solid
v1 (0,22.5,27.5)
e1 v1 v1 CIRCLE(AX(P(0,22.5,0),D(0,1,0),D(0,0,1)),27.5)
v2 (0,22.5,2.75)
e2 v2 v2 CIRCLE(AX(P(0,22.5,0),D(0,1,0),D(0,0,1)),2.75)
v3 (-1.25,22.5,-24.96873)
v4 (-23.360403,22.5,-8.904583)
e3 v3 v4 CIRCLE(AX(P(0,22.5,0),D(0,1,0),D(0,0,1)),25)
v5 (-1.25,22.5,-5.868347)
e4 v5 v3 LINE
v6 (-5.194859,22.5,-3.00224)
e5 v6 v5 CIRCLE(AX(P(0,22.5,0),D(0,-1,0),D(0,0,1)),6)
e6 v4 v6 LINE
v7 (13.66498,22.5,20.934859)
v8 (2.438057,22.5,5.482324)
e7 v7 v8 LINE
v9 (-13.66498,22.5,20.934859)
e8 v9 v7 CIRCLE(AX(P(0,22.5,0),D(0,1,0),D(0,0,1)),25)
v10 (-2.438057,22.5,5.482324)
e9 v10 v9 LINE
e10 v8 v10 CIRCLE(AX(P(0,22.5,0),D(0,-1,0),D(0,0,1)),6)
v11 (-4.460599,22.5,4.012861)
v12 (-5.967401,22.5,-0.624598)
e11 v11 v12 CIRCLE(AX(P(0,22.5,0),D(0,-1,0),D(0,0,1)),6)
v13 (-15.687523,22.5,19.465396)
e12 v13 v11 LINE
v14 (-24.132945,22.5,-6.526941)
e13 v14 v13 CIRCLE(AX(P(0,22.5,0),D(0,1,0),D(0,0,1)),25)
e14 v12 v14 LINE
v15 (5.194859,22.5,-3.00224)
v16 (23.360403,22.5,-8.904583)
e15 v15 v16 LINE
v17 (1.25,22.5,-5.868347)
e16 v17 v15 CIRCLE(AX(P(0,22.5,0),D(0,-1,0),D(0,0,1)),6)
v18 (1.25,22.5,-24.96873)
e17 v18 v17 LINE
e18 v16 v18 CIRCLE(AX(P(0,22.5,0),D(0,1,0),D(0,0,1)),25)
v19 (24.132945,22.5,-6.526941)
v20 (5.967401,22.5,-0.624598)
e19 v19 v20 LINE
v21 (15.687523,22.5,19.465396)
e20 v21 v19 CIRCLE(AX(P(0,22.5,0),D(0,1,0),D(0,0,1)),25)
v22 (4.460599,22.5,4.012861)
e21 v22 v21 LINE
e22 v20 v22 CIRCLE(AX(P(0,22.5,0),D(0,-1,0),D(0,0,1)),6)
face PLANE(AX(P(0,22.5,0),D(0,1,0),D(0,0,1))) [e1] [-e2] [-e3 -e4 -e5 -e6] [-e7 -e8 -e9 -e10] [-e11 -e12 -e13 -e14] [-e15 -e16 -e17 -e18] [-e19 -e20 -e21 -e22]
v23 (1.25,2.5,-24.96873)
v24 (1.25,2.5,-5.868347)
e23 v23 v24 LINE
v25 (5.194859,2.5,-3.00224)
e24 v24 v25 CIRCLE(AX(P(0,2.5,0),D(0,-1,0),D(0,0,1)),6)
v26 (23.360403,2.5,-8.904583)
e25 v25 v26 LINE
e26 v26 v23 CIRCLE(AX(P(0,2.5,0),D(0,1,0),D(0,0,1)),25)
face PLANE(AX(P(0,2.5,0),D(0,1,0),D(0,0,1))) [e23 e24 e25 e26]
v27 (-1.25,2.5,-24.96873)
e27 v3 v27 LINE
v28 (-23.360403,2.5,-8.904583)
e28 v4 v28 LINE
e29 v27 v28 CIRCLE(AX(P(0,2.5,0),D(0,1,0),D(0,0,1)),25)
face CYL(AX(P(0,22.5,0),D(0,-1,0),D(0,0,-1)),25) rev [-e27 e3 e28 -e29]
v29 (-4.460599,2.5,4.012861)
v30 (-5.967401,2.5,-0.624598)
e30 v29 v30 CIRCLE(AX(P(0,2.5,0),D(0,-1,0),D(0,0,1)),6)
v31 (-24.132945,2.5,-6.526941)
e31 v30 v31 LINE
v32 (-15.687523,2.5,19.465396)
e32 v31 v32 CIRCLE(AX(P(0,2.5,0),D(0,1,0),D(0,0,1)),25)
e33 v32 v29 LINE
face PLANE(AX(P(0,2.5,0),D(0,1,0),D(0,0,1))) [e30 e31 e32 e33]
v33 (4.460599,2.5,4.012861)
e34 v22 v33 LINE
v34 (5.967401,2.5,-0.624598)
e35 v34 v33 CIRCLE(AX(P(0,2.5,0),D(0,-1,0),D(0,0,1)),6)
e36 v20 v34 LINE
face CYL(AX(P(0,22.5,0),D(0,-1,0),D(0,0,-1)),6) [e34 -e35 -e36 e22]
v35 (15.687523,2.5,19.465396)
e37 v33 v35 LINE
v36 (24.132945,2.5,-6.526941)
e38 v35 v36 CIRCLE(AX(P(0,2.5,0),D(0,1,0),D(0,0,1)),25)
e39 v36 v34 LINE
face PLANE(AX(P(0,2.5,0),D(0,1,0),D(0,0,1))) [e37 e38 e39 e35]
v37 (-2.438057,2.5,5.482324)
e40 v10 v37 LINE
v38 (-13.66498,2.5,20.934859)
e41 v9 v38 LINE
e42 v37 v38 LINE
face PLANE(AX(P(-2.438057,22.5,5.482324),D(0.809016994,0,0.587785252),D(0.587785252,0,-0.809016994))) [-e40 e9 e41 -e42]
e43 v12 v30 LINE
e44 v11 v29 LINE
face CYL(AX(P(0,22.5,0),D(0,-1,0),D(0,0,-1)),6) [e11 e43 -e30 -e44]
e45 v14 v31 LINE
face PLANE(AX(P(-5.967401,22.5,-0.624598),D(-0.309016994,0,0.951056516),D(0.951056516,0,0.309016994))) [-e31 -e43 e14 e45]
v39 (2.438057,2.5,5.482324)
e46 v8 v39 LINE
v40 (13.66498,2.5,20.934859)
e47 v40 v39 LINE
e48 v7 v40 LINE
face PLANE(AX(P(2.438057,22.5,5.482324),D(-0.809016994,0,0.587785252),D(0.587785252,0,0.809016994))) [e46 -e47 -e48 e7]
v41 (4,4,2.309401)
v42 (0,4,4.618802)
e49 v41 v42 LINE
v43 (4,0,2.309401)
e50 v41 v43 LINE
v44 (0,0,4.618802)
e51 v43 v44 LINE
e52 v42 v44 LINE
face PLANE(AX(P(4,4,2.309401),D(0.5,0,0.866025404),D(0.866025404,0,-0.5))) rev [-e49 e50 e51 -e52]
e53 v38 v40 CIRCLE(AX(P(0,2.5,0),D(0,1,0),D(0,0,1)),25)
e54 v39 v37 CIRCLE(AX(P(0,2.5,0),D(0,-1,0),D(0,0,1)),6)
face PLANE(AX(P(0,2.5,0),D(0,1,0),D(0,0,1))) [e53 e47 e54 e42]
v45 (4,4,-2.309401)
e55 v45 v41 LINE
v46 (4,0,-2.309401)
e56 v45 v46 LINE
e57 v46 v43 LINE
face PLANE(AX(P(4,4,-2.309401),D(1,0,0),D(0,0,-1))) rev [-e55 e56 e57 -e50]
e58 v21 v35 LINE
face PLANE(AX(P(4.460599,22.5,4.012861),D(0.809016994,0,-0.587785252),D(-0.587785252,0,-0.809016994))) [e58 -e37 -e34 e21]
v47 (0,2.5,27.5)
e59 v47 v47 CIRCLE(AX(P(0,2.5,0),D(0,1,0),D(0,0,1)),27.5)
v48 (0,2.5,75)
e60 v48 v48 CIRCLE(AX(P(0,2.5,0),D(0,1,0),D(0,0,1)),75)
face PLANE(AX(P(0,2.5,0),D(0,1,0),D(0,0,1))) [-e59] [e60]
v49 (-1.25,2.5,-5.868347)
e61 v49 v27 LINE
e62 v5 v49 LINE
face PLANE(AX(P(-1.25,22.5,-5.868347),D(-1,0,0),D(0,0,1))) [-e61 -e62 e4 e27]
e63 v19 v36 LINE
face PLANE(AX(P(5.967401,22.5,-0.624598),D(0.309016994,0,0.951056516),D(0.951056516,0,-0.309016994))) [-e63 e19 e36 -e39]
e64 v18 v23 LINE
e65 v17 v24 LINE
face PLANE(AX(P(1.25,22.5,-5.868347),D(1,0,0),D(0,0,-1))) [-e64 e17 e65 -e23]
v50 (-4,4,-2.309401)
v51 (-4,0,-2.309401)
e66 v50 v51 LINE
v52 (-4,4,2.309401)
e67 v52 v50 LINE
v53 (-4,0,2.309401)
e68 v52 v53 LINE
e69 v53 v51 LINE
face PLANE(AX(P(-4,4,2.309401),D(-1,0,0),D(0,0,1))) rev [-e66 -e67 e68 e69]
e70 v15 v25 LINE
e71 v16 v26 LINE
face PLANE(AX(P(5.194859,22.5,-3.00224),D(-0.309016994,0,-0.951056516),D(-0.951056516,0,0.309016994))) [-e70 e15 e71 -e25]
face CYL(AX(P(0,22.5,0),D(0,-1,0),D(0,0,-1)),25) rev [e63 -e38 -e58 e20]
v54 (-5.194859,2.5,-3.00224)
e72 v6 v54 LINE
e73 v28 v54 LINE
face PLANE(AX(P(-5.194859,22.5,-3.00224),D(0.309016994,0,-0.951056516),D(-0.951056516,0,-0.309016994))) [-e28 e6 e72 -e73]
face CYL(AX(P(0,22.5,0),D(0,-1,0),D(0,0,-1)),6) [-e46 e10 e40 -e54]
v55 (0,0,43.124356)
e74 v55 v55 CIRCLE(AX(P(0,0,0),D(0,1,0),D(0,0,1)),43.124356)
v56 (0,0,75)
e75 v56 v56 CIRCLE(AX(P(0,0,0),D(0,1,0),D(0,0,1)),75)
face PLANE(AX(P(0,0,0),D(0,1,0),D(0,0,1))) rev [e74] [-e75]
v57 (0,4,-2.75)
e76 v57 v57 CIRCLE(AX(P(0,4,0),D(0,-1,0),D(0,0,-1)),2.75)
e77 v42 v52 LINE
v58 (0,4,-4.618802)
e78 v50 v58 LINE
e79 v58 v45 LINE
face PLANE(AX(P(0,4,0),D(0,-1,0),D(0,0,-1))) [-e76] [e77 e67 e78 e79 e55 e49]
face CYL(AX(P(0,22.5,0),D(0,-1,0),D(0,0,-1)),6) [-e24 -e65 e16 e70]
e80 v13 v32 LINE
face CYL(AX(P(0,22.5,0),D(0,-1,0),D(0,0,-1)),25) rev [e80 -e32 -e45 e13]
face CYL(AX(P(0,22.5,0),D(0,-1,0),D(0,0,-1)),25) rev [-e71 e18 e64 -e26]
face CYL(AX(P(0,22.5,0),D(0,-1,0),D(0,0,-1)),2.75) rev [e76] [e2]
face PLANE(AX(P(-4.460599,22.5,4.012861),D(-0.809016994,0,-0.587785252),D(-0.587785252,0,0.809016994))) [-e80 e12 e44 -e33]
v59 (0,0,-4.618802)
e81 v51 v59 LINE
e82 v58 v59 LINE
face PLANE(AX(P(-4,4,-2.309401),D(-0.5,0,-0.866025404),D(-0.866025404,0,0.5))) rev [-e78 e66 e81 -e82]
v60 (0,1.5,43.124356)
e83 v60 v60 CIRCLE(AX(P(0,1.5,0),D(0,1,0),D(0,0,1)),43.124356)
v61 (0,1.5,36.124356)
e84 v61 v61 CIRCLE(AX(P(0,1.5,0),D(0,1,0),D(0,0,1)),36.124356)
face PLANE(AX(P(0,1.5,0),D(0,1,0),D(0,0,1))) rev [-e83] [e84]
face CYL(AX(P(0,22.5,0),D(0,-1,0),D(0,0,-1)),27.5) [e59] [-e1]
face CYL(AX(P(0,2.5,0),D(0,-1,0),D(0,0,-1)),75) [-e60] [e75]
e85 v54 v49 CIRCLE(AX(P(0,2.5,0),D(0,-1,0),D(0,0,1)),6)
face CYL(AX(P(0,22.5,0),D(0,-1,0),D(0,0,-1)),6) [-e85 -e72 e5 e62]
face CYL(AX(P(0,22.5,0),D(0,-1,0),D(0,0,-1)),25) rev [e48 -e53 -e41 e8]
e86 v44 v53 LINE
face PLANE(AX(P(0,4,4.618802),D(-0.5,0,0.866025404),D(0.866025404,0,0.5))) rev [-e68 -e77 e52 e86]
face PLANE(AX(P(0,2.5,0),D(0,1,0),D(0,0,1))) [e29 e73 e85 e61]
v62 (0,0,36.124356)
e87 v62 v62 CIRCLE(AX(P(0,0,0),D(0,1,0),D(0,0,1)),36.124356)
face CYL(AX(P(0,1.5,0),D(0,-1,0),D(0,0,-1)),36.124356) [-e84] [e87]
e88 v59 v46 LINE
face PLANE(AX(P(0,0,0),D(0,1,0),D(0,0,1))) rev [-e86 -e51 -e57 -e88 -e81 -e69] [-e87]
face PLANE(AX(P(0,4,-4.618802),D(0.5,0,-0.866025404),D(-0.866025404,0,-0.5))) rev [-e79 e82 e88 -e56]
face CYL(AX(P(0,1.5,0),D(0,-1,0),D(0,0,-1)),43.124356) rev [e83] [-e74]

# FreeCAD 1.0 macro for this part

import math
import FreeCAD as App
import Part
import Sketcher
from FreeCAD import Vector
Q = App.Units.Quantity

doc = App.newDocument("Part")
body = doc.addObject("PartDesign::Body", "Body")

# Sketch on XZ plane
sketch1 = doc.addObject("Sketcher::SketchObject", "Sketch")
body.addObject(sketch1)
sketch1.AttachmentSupport = (doc.XZ_Plane, [""])
sketch1.MapMode = "FlatFace"
sketch1.addGeometry(Part.Circle(Vector(0, 0, 0), Vector(0, 0, 1), 36.124356), False)
sketch1.addConstraint([
    Sketcher.Constraint("Coincident", 0, 3, -1, 1),
    Sketcher.Constraint("Diameter", 0, Q("72.248711 mm")),
])
pad1 = doc.addObject("PartDesign::Pad", "Pad")
body.addObject(pad1)
pad1.Profile = sketch1
pad1.Length = 1.5
pad1.Reversed = True
body2 = doc.addObject("PartDesign::Body", "Body001")

# Sketch on XZ plane
sketch2 = doc.addObject("Sketcher::SketchObject", "Sketch001")
body2.addObject(sketch2)
sketch2.AttachmentSupport = (doc.getObject("XZ_Plane001"), [""])
sketch2.MapMode = "FlatFace"
sketch2.addGeometry([
    Part.Circle(Vector(0, 0, 0), Vector(0, 0, 1), 75),
    Part.Circle(Vector(0, 0, 0), Vector(0, 0, 1), 43.124356),
], False)
sketch2.addConstraint([
    Sketcher.Constraint("Coincident", 0, 3, -1, 1),
    Sketcher.Constraint("Coincident", 1, 3, -1, 1),
    Sketcher.Constraint("Diameter", 0, Q("150 mm")),
    Sketcher.Constraint("Diameter", 1, Q("86.248711 mm")),
])
pad2 = doc.addObject("PartDesign::Pad", "Pad001")
body2.addObject(pad2)
pad2.Profile = sketch2
pad2.Length = 1.5
pad2.Reversed = True
body.AllowCompound = True
doc.recompute()

boolean = doc.addObject("PartDesign::Boolean", "Boolean")
body.addObject(boolean)
boolean.Type = "Fuse"
boolean.addObjects([body2])

# Sketch on XZ plane
sketch3 = doc.addObject("Sketcher::SketchObject", "Sketch002")
body.addObject(sketch3)
sketch3.AttachmentSupport = (doc.XZ_Plane, [""])
sketch3.MapMode = "FlatFace"
sketch3.AttachmentOffset = App.Placement(Vector(0, 0, -1.5), App.Rotation())
sketch3.addGeometry(Part.Circle(Vector(0, 0, 0), Vector(0, 0, 1), 75), False)
sketch3.addConstraint([
    Sketcher.Constraint("Coincident", 0, 3, -1, 1),
    Sketcher.Constraint("Diameter", 0, Q("150 mm")),
])
pad3 = doc.addObject("PartDesign::Pad", "Pad002")
body.addObject(pad3)
pad3.Profile = sketch3
pad3.Length = 1
pad3.Reversed = True

# Sketch on XZ plane
sketch4 = doc.addObject("Sketcher::SketchObject", "Sketch003")
body.addObject(sketch4)
sketch4.AttachmentSupport = (doc.XZ_Plane, [""])
sketch4.MapMode = "FlatFace"
sketch4.AttachmentOffset = App.Placement(Vector(0, 0, -2.5), App.Rotation())
sketch4.addGeometry([
    Part.Circle(Vector(0, 0, 0), Vector(0, 0, 1), 27.5),  # 0
    Part.LineSegment(Vector(-1.25, -24.96873, 0), Vector(-1.25, -5.868347, 0)),  # 1
    Part.ArcOfCircle(Part.Circle(Vector(0, 0, 0), Vector(0, 0, 1), 6), math.radians(-149.975301), math.radians(-102.024699)),  # 2
    Part.LineSegment(Vector(-5.194859, -3.00224, 0), Vector(-23.360403, -8.904583, 0)),  # 3
    Part.ArcOfCircle(Part.Circle(Vector(0, 0, 0), Vector(0, 0, 1), 25), math.radians(-159.134016), math.radians(-92.865984)),  # 4
    Part.ArcOfCircle(Part.Circle(Vector(0, 0, 0), Vector(0, 0, 1), 6), math.radians(138.024699), math.radians(185.975301)),  # 5
    Part.LineSegment(Vector(-4.460599, 4.012861, 0), Vector(-15.687523, 19.465396, 0)),  # 6
    Part.ArcOfCircle(Part.Circle(Vector(0, 0, 0), Vector(0, 0, 1), 25), math.radians(128.865984), math.radians(195.134016)),  # 7
    Part.LineSegment(Vector(-24.132945, -6.526941, 0), Vector(-5.967401, -0.624598, 0)),  # 8
    Part.ArcOfCircle(Part.Circle(Vector(0, 0, 0), Vector(0, 0, 1), 6), math.radians(-77.975301), math.radians(-30.024699)),  # 9
    Part.LineSegment(Vector(1.25, -5.868347, 0), Vector(1.25, -24.96873, 0)),  # 10
    Part.ArcOfCircle(Part.Circle(Vector(0, 0, 0), Vector(0, 0, 1), 25), math.radians(-87.134016), math.radians(-20.865984)),  # 11
    Part.LineSegment(Vector(23.360403, -8.904583, 0), Vector(5.194859, -3.00224, 0)),  # 12
    Part.Circle(Vector(0, 0, 0), Vector(0, 0, 1), 2.75),  # 13
    Part.ArcOfCircle(Part.Circle(Vector(0, 0, 0), Vector(0, 0, 1), 6), math.radians(66.024699), math.radians(113.975301)),  # 14
    Part.LineSegment(Vector(2.438057, 5.482324, 0), Vector(13.66498, 20.934859, 0)),  # 15
    Part.ArcOfCircle(Part.Circle(Vector(0, 0, 0), Vector(0, 0, 1), 25), math.radians(56.865984), math.radians(123.134016)),  # 16
    Part.LineSegment(Vector(-13.66498, 20.934859, 0), Vector(-2.438057, 5.482324, 0)),  # 17
    Part.ArcOfCircle(Part.Circle(Vector(0, 0, 0), Vector(0, 0, 1), 6), math.radians(-5.975301), math.radians(41.975301)),  # 18
    Part.LineSegment(Vector(5.967401, -0.624598, 0), Vector(24.132945, -6.526941, 0)),  # 19
    Part.ArcOfCircle(Part.Circle(Vector(0, 0, 0), Vector(0, 0, 1), 25), math.radians(-15.134016), math.radians(51.134016)),  # 20
    Part.LineSegment(Vector(15.687523, 19.465396, 0), Vector(4.460599, 4.012861, 0)),  # 21
], False)
sketch4.addConstraint([
    Sketcher.Constraint("Coincident", 1, 2, 2, 2),
    Sketcher.Constraint("Coincident", 2, 1, 3, 1),
    Sketcher.Constraint("Coincident", 3, 2, 4, 1),
    Sketcher.Constraint("Coincident", 4, 2, 1, 1),
    Sketcher.Constraint("Coincident", 5, 1, 6, 1),
    Sketcher.Constraint("Coincident", 6, 2, 7, 1),
    Sketcher.Constraint("Coincident", 7, 2, 8, 1),
    Sketcher.Constraint("Coincident", 8, 2, 5, 2),
    Sketcher.Constraint("Coincident", 9, 1, 10, 1),
    Sketcher.Constraint("Coincident", 10, 2, 11, 1),
    Sketcher.Constraint("Coincident", 11, 2, 12, 1),
    Sketcher.Constraint("Coincident", 12, 2, 9, 2),
    Sketcher.Constraint("Coincident", 14, 1, 15, 1),
    Sketcher.Constraint("Coincident", 15, 2, 16, 1),
    Sketcher.Constraint("Coincident", 16, 2, 17, 1),
    Sketcher.Constraint("Coincident", 17, 2, 14, 2),
    Sketcher.Constraint("Coincident", 18, 1, 19, 1),
    Sketcher.Constraint("Coincident", 19, 2, 20, 1),
    Sketcher.Constraint("Coincident", 20, 2, 21, 1),
    Sketcher.Constraint("Coincident", 21, 2, 18, 2),
    Sketcher.Constraint("Vertical", 1),
    Sketcher.Constraint("Vertical", 10),
    Sketcher.Constraint("Coincident", 0, 3, -1, 1),
    Sketcher.Constraint("Coincident", 2, 3, -1, 1),
    Sketcher.Constraint("Coincident", 4, 3, -1, 1),
    Sketcher.Constraint("Coincident", 5, 3, -1, 1),
    Sketcher.Constraint("Coincident", 7, 3, -1, 1),
    Sketcher.Constraint("Coincident", 9, 3, -1, 1),
    Sketcher.Constraint("Coincident", 11, 3, -1, 1),
    Sketcher.Constraint("Coincident", 13, 3, -1, 1),
    Sketcher.Constraint("Coincident", 14, 3, -1, 1),
    Sketcher.Constraint("Coincident", 16, 3, -1, 1),
    Sketcher.Constraint("Coincident", 18, 3, -1, 1),
    Sketcher.Constraint("Coincident", 20, 3, -1, 1),
    Sketcher.Constraint("Equal", 2, 5),
    Sketcher.Constraint("Equal", 4, 7),
    Sketcher.Constraint("Equal", 5, 9),
    Sketcher.Constraint("Equal", 7, 11),
    Sketcher.Constraint("Equal", 9, 14),
    Sketcher.Constraint("Equal", 11, 16),
    Sketcher.Constraint("Equal", 14, 18),
    Sketcher.Constraint("Equal", 16, 20),
    Sketcher.Constraint("Parallel", 3, 8),
    Sketcher.Constraint("Parallel", 6, 17),
    Sketcher.Constraint("Parallel", 12, 19),
    Sketcher.Constraint("Parallel", 15, 21),
    Sketcher.Constraint("Horizontal", 1, 2, 9, 1),
    Sketcher.Constraint("Horizontal", 3, 2, 11, 2),
    Sketcher.Constraint("Horizontal", 2, 1, 12, 2),
    Sketcher.Constraint("Horizontal", 15, 2, 16, 2),
    Sketcher.Constraint("Horizontal", 14, 1, 17, 2),
    Sketcher.Constraint("Horizontal", 8, 2, 18, 1),
    Sketcher.Constraint("Horizontal", 6, 2, 20, 2),
    Sketcher.Constraint("Equal", 3, 6),
    Sketcher.Constraint("Equal", 6, 8),
    Sketcher.Constraint("Equal", 12, 15),
    Sketcher.Constraint("Diameter", 0, Q("55 mm")),
    Sketcher.Constraint("Radius", 2, Q("6 mm")),
    Sketcher.Constraint("Radius", 4, Q("25 mm")),
    Sketcher.Constraint("Diameter", 13, Q("5.5 mm")),
    Sketcher.Constraint("Angle", 3, Q("-162 deg")),
    Sketcher.Constraint("Angle", 6, Q("126 deg")),
    Sketcher.Constraint("DistanceX", 1, 2, 9, 1, Q("2.5 mm")),
    Sketcher.Constraint("DistanceX", 5, 1, -1, 1, Q("4.460599 mm")),
])
pad4 = doc.addObject("PartDesign::Pad", "Pad003")
body.addObject(pad4)
pad4.Profile = sketch4
pad4.Length = 20
pad4.Reversed = True

# Sketch on XZ plane
sketch5 = doc.addObject("Sketcher::SketchObject", "Sketch004")
body.addObject(sketch5)
sketch5.AttachmentSupport = (doc.XZ_Plane, [""])
sketch5.MapMode = "FlatFace"
sketch5.addGeometry([
    Part.LineSegment(Vector(-4, 2.309401, 0), Vector(-4, -2.309401, 0)),  # 0
    Part.LineSegment(Vector(-4, -2.309401, 0), Vector(0, -4.618802, 0)),  # 1
    Part.LineSegment(Vector(0, -4.618802, 0), Vector(4, -2.309401, 0)),  # 2
    Part.LineSegment(Vector(4, -2.309401, 0), Vector(4, 2.309401, 0)),  # 3
    Part.LineSegment(Vector(4, 2.309401, 0), Vector(0, 4.618802, 0)),  # 4
    Part.LineSegment(Vector(0, 4.618802, 0), Vector(-4, 2.309401, 0)),  # 5
], False)
sketch5.addConstraint([
    Sketcher.Constraint("Coincident", 0, 2, 1, 1),
    Sketcher.Constraint("Coincident", 1, 2, 2, 1),
    Sketcher.Constraint("Coincident", 2, 2, 3, 1),
    Sketcher.Constraint("Coincident", 3, 2, 4, 1),
    Sketcher.Constraint("Coincident", 4, 2, 5, 1),
    Sketcher.Constraint("Coincident", 5, 2, 0, 1),
    Sketcher.Constraint("Vertical", 0),
    Sketcher.Constraint("Vertical", 3),
    Sketcher.Constraint("Symmetric", 0, 2, 3, 2, -1, 1),
    Sketcher.Constraint("Symmetric", 1, 2, 4, 2, -1, 1),
    Sketcher.Constraint("PointOnObject", 1, 2, -2),
    Sketcher.Constraint("Parallel", 2, 5),
    Sketcher.Constraint("Horizontal", 0, 2, 2, 2),
    Sketcher.Constraint("Angle", 1, Q("-30 deg")),
    Sketcher.Constraint("DistanceX", 0, 2, -1, 1, Q("4 mm")),
    Sketcher.Constraint("DistanceY", 0, 2, -1, 1, Q("2.309401 mm")),
])
pocket1 = doc.addObject("PartDesign::Pocket", "Pocket")
body.addObject(pocket1)
pocket1.Profile = sketch5
pocket1.Length = 4

doc.recompute()
